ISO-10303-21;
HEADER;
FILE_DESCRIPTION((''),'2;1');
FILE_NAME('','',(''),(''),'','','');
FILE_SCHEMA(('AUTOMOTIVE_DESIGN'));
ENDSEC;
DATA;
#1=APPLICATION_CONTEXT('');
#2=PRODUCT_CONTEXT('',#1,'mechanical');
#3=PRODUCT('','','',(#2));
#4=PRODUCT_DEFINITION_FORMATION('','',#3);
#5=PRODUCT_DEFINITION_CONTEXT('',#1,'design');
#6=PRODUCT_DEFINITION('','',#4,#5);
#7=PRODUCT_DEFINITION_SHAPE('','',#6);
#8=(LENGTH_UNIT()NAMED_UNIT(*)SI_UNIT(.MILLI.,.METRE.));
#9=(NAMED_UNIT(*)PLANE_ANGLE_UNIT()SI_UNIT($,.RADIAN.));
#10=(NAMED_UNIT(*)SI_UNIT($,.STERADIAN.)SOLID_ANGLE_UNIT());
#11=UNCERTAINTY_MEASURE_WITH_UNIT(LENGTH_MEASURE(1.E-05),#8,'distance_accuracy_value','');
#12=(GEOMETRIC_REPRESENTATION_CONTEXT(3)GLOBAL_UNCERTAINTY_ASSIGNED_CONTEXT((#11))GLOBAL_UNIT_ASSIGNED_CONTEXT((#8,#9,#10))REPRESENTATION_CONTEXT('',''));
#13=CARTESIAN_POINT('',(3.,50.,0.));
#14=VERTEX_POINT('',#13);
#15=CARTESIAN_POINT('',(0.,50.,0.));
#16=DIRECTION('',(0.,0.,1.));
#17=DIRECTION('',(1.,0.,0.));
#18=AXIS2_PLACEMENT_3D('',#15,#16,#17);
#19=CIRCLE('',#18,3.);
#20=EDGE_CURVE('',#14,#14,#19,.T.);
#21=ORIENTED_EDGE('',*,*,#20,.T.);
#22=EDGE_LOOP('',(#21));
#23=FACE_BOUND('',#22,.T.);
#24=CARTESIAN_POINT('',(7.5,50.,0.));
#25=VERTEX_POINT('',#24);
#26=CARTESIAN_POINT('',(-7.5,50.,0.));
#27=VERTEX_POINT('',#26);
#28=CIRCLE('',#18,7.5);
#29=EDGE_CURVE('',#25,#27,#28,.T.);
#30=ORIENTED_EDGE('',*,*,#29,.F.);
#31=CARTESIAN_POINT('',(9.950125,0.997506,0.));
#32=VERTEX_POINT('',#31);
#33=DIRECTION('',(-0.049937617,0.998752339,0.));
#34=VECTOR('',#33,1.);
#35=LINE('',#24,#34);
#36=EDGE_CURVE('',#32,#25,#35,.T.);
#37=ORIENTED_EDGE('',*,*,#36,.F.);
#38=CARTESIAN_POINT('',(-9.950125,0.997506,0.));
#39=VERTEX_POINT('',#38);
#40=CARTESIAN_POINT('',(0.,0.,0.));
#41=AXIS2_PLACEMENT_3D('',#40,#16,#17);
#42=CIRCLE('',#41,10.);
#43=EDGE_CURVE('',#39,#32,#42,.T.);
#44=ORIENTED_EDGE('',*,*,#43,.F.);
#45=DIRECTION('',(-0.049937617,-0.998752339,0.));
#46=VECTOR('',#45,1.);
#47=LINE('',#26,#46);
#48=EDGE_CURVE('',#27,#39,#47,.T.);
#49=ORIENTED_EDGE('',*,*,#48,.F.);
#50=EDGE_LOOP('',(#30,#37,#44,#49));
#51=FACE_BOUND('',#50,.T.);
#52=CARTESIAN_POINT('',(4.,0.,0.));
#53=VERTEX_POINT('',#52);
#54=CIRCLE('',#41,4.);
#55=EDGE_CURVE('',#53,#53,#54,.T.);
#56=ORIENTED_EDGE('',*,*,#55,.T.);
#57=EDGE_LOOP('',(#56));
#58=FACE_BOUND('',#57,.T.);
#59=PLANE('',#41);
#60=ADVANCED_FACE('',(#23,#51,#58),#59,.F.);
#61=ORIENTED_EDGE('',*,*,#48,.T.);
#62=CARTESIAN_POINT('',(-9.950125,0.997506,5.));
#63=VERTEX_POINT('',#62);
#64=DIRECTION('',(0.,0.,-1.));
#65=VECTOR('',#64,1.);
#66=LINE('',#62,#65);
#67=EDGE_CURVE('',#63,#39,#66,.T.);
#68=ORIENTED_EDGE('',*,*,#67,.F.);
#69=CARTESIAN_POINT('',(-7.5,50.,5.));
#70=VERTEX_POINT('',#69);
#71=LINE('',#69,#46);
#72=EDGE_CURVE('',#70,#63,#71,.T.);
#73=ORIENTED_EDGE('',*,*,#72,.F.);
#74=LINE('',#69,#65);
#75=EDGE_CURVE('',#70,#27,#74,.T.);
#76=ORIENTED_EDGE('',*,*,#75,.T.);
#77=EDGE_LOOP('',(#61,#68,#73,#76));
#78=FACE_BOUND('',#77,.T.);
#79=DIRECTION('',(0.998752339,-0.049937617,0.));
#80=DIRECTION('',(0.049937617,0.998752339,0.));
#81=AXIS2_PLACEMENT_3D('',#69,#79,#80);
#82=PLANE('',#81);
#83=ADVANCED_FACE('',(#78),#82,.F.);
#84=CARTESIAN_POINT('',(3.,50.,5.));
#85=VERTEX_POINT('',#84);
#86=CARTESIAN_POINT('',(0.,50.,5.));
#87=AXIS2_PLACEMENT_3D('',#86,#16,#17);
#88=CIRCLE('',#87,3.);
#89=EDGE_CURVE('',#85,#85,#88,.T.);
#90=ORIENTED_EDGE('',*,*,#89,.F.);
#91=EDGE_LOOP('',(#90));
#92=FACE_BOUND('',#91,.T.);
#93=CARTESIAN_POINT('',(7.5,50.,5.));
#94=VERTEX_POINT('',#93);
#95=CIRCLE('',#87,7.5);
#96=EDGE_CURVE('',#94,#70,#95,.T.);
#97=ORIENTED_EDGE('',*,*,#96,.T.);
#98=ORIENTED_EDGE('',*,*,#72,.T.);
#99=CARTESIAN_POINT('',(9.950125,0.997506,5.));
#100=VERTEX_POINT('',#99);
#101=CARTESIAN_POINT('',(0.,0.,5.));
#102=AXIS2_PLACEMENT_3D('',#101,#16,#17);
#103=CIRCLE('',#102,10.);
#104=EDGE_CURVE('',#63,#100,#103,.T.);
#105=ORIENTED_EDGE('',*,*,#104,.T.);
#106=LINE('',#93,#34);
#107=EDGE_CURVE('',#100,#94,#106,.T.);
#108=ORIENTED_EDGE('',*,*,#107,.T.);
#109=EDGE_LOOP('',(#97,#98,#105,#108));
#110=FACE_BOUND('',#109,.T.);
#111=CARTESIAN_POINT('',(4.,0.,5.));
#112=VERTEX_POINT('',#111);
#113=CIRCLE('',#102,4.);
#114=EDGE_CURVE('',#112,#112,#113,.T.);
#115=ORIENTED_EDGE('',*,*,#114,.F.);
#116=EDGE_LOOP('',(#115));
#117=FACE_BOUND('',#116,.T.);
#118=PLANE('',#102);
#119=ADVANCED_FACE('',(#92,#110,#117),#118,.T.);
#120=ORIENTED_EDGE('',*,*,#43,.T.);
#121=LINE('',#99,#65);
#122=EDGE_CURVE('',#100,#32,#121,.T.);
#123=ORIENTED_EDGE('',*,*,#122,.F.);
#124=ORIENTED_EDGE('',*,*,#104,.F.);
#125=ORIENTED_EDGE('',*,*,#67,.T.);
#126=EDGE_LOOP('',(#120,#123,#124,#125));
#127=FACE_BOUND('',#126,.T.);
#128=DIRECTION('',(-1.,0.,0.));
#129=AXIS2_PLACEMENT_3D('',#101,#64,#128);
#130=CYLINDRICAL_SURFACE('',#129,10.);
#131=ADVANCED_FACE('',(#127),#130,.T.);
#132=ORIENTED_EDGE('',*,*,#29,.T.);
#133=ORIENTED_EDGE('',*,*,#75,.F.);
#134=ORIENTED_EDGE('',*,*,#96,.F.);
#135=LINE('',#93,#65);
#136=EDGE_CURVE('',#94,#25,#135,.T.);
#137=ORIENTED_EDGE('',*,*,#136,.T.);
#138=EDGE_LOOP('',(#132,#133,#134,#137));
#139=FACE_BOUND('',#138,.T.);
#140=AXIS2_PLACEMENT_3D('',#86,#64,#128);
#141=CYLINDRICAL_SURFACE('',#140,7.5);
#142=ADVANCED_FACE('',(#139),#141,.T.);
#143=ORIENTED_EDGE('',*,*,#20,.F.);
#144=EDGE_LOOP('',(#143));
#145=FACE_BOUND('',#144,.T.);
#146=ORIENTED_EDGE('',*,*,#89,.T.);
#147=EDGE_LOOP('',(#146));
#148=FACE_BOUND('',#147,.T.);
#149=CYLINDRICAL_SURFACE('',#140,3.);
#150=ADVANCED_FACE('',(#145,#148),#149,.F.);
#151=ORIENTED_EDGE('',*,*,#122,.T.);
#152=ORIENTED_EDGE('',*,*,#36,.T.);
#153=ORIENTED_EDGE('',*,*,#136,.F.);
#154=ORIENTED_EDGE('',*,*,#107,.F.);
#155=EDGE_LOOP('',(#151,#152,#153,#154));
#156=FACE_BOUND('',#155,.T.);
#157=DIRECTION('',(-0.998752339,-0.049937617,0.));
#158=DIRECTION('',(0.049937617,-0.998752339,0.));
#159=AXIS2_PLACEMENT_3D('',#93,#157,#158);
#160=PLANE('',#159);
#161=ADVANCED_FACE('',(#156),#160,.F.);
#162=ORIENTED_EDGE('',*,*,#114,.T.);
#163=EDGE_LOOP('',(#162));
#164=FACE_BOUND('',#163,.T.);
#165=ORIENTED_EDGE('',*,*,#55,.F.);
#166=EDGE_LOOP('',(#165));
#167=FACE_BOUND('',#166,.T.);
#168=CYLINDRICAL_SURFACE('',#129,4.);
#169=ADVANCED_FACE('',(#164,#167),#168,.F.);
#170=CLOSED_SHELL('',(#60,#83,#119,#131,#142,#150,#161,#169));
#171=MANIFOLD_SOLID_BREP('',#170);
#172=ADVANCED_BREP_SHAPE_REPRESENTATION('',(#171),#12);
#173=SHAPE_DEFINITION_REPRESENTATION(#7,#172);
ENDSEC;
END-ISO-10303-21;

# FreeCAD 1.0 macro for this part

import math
import FreeCAD as App
import Part
import Sketcher

V = App.Vector
Q = App.Units.Quantity

doc = App.newDocument("Part")
body = doc.addObject("PartDesign::Body", "Body")

# Sketch on XY plane
sketch1 = body.newObject("Sketcher::SketchObject", "Sketch")
sketch1.AttachmentSupport = (doc.getObject("XY_Plane"), [""])
sketch1.MapMode = "FlatFace"
sketch1.addGeometry([
    Part.LineSegment(V(-7.5, 50, 0), V(-9.950125, 0.997506, 0)),  # 0
    Part.ArcOfCircle(Part.Circle(V(0, 0, 0), V(0, 0, 1), 10), math.radians(174.27519), math.radians(365.72481)),  # 1
    Part.LineSegment(V(9.950125, 0.997506, 0), V(7.5, 50, 0)),  # 2
    Part.ArcOfCircle(Part.Circle(V(0, 50, 0), V(0, 0, 1), 7.5), math.radians(0), math.radians(180)),  # 3
    Part.Circle(V(0, 0, 0), V(0, 0, 1), 4),  # 4
    Part.Circle(V(0, 50, 0), V(0, 0, 1), 3),  # 5
], False)
sketch1.addConstraint([
    Sketcher.Constraint("Coincident", 0, 2, 1, 1),
    Sketcher.Constraint("Coincident", 1, 2, 2, 1),
    Sketcher.Constraint("Coincident", 2, 2, 3, 1),
    Sketcher.Constraint("Coincident", 3, 2, 0, 1),
    Sketcher.Constraint("Coincident", 1, 3, -1, 1),
    Sketcher.Constraint("Coincident", 4, 3, -1, 1),
    Sketcher.Constraint("Coincident", 5, 3, 3, 3),
    Sketcher.Constraint("Symmetric", 2, 2, 3, 2, -2),
    Sketcher.Constraint("Horizontal", 0, 2, 1, 2),
    Sketcher.Constraint("Horizontal", 5, 3, 2, 2),
    Sketcher.Constraint("Diameter", 4, Q("8 mm")),
    Sketcher.Constraint("Diameter", 5, Q("6 mm")),
    Sketcher.Constraint("Radius", 1, Q("10 mm")),
    Sketcher.Constraint("Radius", 3, Q("7.5 mm")),
    Sketcher.Constraint("DistanceY", -1, 1, 3, 3, Q("50 mm")),
    Sketcher.Constraint("Distance", 0, Q("49.063709 mm")),
])
pad1 = body.newObject("PartDesign::Pad", "Pad")
pad1.Profile = sketch1
pad1.Length = 5

doc.recompute()
